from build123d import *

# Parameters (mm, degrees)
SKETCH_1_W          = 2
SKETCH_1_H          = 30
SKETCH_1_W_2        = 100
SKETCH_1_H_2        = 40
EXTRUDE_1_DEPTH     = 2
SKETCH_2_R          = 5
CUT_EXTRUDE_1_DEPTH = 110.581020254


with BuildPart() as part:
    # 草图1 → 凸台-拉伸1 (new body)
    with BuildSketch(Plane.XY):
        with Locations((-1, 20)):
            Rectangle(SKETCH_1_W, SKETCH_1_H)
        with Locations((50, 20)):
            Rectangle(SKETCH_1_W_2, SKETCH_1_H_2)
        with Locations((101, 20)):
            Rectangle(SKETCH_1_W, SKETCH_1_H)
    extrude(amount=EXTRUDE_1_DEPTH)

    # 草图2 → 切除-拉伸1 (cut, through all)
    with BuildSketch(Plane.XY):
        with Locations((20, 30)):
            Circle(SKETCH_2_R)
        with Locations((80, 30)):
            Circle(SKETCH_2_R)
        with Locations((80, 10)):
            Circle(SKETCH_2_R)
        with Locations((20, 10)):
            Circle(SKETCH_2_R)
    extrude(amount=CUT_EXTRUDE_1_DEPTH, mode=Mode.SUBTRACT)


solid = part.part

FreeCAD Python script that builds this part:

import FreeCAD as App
import Part
import Sketcher

V = App.Vector
Q = App.Units.Quantity

doc = App.newDocument("Part")
body = doc.addObject("PartDesign::Body", "Body")

# Sketch on XY plane
sketch1 = body.newObject("Sketcher::SketchObject", "Sketch")
sketch1.AttachmentSupport = (doc.getObject("XY_Plane"), [""])
sketch1.MapMode = "FlatFace"
sketch1.addGeometry([
    Part.LineSegment(V(-2, 35, 0), V(-2, 5, 0)),  # 0
    Part.LineSegment(V(-2, 5, 0), V(0, 5, 0)),  # 1
    Part.LineSegment(V(0, 5, 0), V(0, 0, 0)),  # 2
    Part.LineSegment(V(0, 0, 0), V(100, 0, 0)),  # 3
    Part.LineSegment(V(100, 0, 0), V(100, 5, 0)),  # 4
    Part.LineSegment(V(100, 5, 0), V(102, 5, 0)),  # 5
    Part.LineSegment(V(102, 5, 0), V(102, 35, 0)),  # 6
    Part.LineSegment(V(102, 35, 0), V(100, 35, 0)),  # 7
    Part.LineSegment(V(100, 35, 0), V(100, 40, 0)),  # 8
    Part.LineSegment(V(100, 40, 0), V(0, 40, 0)),  # 9
    Part.LineSegment(V(0, 40, 0), V(0, 35, 0)),  # 10
    Part.LineSegment(V(0, 35, 0), V(-2, 35, 0)),  # 11
], False)
sketch1.addConstraint([
    Sketcher.Constraint("Coincident", 0, 2, 1, 1),
    Sketcher.Constraint("Coincident", 1, 2, 2, 1),
    Sketcher.Constraint("Coincident", 2, 2, 3, 1),
    Sketcher.Constraint("Coincident", 3, 2, 4, 1),
    Sketcher.Constraint("Coincident", 4, 2, 5, 1),
    Sketcher.Constraint("Coincident", 5, 2, 6, 1),
    Sketcher.Constraint("Coincident", 6, 2, 7, 1),
    Sketcher.Constraint("Coincident", 7, 2, 8, 1),
    Sketcher.Constraint("Coincident", 8, 2, 9, 1),
    Sketcher.Constraint("Coincident", 9, 2, 10, 1),
    Sketcher.Constraint("Coincident", 10, 2, 11, 1),
    Sketcher.Constraint("Coincident", 11, 2, 0, 1),
    Sketcher.Constraint("Vertical", 0),
    Sketcher.Constraint("Horizontal", 1),
    Sketcher.Constraint("Vertical", 2),
    Sketcher.Constraint("Horizontal", 3),
    Sketcher.Constraint("Vertical", 4),
    Sketcher.Constraint("Horizontal", 5),
    Sketcher.Constraint("Vertical", 6),
    Sketcher.Constraint("Horizontal", 7),
    Sketcher.Constraint("Vertical", 8),
    Sketcher.Constraint("Horizontal", 9),
    Sketcher.Constraint("Vertical", 10),
    Sketcher.Constraint("Horizontal", 11),
    Sketcher.Constraint("Coincident", 2, 2, -1, 1),
    Sketcher.Constraint("PointOnObject", 9, 2, -2),
    Sketcher.Constraint("Horizontal", 1, 2, 4, 2),
    Sketcher.Constraint("Horizontal", 7, 2, 10, 2),
    Sketcher.Constraint("Vertical", 4, 2, 7, 2),
    Sketcher.Constraint("Equal", 1, 5),
    Sketcher.Constraint("Equal", 4, 8),
    Sketcher.Constraint("DistanceX", 1, 1, 1, 2, Q("2 mm")),
    Sketcher.Constraint("DistanceX", 3, 1, 3, 2, Q("100 mm")),
    Sketcher.Constraint("DistanceY", 0, 2, 0, 1, Q("30 mm")),
    Sketcher.Constraint("DistanceY", 2, 2, 2, 1, Q("5 mm")),
])
pad1 = body.newObject("PartDesign::Pad", "Pad")
pad1.Profile = sketch1
pad1.Length = 2

# Sketch on XY plane
sketch2 = body.newObject("Sketcher::SketchObject", "Sketch001")
sketch2.AttachmentSupport = (doc.getObject("XY_Plane"), [""])
sketch2.MapMode = "FlatFace"
sketch2.addGeometry([
    Part.Circle(V(20, 30, 0), V(0, 0, 1), 5),
    Part.Circle(V(80, 30, 0), V(0, 0, 1), 5),
    Part.Circle(V(80, 10, 0), V(0, 0, 1), 5),
    Part.Circle(V(20, 10, 0), V(0, 0, 1), 5),
], False)
sketch2.addConstraint([
    Sketcher.Constraint("Equal", 0, 1),
    Sketcher.Constraint("Equal", 1, 2),
    Sketcher.Constraint("Equal", 2, 3),
    Sketcher.Constraint("Horizontal", 0, 3, 1, 3),
    Sketcher.Constraint("Horizontal", 2, 3, 3, 3),
    Sketcher.Constraint("Vertical", 1, 3, 2, 3),
    Sketcher.Constraint("Vertical", 0, 3, 3, 3),
    Sketcher.Constraint("Diameter", 0, Q("10 mm")),
    Sketcher.Constraint("DistanceX", -1, 1, 0, 3, Q("20 mm")),
    Sketcher.Constraint("DistanceY", -1, 1, 0, 3, Q("30 mm")),
    Sketcher.Constraint("DistanceX", -1, 1, 1, 3, Q("80 mm")),
    Sketcher.Constraint("DistanceY", -1, 1, 2, 3, Q("10 mm")),
])
pocket1 = body.newObject("PartDesign::Pocket", "Pocket")
pocket1.Profile = sketch2
pocket1.Type = "ThroughAll"
pocket1.Reversed = True

doc.recompute()
